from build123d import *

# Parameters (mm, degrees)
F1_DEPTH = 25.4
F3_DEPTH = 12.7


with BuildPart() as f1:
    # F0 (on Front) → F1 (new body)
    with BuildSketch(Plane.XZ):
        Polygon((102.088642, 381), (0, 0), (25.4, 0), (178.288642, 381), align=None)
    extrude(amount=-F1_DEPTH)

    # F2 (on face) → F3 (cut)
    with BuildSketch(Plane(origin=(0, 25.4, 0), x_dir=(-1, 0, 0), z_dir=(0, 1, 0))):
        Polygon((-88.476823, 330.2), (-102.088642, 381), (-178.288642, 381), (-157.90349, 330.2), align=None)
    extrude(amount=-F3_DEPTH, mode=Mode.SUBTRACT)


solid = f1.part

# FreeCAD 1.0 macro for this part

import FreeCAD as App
import Part
import Sketcher
from FreeCAD import Vector
Q = App.Units.Quantity

doc = App.newDocument("Part")
params = doc.addObject("Spreadsheet::Sheet", "Params")
for row, (alias, value) in enumerate([
    ("sketch1_width", "1 in"),
    ("sketch1_width2", "3 in"),
    ("pad1_length", "1 in"),
    ("sketch2_width", "3 in"),
    ("pocket1_length", "0.5 in"),
], start=1):
    params.set(f"A{row}", alias)
    params.set(f"B{row}", "=" + value)
    params.setAlias(f"B{row}", alias)

body = doc.addObject("PartDesign::Body", "Body")

# Sketch on XZ plane
sketch1 = body.newObject("Sketcher::SketchObject", "Sketch")
sketch1.AttachmentSupport = (doc.getObject("XZ_Plane"), [""])
sketch1.MapMode = "FlatFace"
sketch1.addGeometry([
    Part.LineSegment(Vector(102, 381, 0), Vector(0, 0, 0)),
    Part.LineSegment(Vector(0, 0, 0), Vector(25, 0, 0)),
    Part.LineSegment(Vector(25, 0, 0), Vector(178, 381, 0)),
    Part.LineSegment(Vector(178, 381, 0), Vector(102, 381, 0)),
], False)
sketch1.addConstraint([
    Sketcher.Constraint("Coincident", 0, 2, 1, 1),
    Sketcher.Constraint("Coincident", 1, 2, 2, 1),
    Sketcher.Constraint("Coincident", 2, 2, 3, 1),
    Sketcher.Constraint("Coincident", 3, 2, 0, 1),
    Sketcher.Constraint("Horizontal", 1),
    Sketcher.Constraint("Horizontal", 3),
    Sketcher.Constraint("Coincident", 0, 2, -1, 1),
    Sketcher.Constraint("DistanceX", 1, 1, 1, 2, Q("1 in")),
    Sketcher.Constraint("DistanceX", 3, 2, 3, 1, Q("3 in")),
    Sketcher.Constraint("DistanceY", -1, 1, 2, 2, Q("15 in")),
    Sketcher.Constraint("Angle", 0, Q("-105 deg")),
])
sketch1.setExpression("Constraints[7]", "Params.sketch1_width")
sketch1.setExpression("Constraints[8]", "Params.sketch1_width2")
pad1 = body.newObject("PartDesign::Pad", "Pad")
pad1.Profile = sketch1
pad1.setExpression("Length", "Params.pad1_length")
pad1.Reversed = True

# Sketch on XZ plane
sketch2 = body.newObject("Sketcher::SketchObject", "Sketch001")
sketch2.AttachmentSupport = (doc.getObject("XZ_Plane"), [""])
sketch2.MapMode = "FlatFace"
sketch2.AttachmentOffset = App.Placement(Vector(0, 0, -1 * 25.4), App.Rotation())
sketch2.addGeometry([
    Part.LineSegment(Vector(88, 330, 0), Vector(102, 381, 0)),
    Part.LineSegment(Vector(102, 381, 0), Vector(178, 381, 0)),
    Part.LineSegment(Vector(178, 381, 0), Vector(158, 330, 0)),
    Part.LineSegment(Vector(158, 330, 0), Vector(88, 330, 0)),
], False)
sketch2.addConstraint([
    Sketcher.Constraint("Coincident", 0, 2, 1, 1),
    Sketcher.Constraint("Coincident", 1, 2, 2, 1),
    Sketcher.Constraint("Coincident", 2, 2, 3, 1),
    Sketcher.Constraint("Coincident", 3, 2, 0, 1),
    Sketcher.Constraint("Horizontal", 1),
    Sketcher.Constraint("Horizontal", 3),
    Sketcher.Constraint("DistanceX", 1, 1, 1, 2, Q("3 in")),
    Sketcher.Constraint("DistanceY", -1, 1, 0, 2, Q("15 in")),
    Sketcher.Constraint("DistanceY", -1, 1, 2, 2, Q("13 in")),
    Sketcher.Constraint("Angle", 0, Q("75 deg")),
    Sketcher.Constraint("DistanceX", 3, 2, 3, 1, Q("69.426667 mm")),
    Sketcher.Constraint("DistanceX", -1, 1, 0, 2, Q("102.088642 mm")),
])
sketch2.setExpression("Constraints[6]", "Params.sketch2_width")
pocket1 = body.newObject("PartDesign::Pocket", "Pocket")
pocket1.Profile = sketch2
pocket1.setExpression("Length", "Params.pocket1_length")
pocket1.Reversed = True

doc.recompute()
